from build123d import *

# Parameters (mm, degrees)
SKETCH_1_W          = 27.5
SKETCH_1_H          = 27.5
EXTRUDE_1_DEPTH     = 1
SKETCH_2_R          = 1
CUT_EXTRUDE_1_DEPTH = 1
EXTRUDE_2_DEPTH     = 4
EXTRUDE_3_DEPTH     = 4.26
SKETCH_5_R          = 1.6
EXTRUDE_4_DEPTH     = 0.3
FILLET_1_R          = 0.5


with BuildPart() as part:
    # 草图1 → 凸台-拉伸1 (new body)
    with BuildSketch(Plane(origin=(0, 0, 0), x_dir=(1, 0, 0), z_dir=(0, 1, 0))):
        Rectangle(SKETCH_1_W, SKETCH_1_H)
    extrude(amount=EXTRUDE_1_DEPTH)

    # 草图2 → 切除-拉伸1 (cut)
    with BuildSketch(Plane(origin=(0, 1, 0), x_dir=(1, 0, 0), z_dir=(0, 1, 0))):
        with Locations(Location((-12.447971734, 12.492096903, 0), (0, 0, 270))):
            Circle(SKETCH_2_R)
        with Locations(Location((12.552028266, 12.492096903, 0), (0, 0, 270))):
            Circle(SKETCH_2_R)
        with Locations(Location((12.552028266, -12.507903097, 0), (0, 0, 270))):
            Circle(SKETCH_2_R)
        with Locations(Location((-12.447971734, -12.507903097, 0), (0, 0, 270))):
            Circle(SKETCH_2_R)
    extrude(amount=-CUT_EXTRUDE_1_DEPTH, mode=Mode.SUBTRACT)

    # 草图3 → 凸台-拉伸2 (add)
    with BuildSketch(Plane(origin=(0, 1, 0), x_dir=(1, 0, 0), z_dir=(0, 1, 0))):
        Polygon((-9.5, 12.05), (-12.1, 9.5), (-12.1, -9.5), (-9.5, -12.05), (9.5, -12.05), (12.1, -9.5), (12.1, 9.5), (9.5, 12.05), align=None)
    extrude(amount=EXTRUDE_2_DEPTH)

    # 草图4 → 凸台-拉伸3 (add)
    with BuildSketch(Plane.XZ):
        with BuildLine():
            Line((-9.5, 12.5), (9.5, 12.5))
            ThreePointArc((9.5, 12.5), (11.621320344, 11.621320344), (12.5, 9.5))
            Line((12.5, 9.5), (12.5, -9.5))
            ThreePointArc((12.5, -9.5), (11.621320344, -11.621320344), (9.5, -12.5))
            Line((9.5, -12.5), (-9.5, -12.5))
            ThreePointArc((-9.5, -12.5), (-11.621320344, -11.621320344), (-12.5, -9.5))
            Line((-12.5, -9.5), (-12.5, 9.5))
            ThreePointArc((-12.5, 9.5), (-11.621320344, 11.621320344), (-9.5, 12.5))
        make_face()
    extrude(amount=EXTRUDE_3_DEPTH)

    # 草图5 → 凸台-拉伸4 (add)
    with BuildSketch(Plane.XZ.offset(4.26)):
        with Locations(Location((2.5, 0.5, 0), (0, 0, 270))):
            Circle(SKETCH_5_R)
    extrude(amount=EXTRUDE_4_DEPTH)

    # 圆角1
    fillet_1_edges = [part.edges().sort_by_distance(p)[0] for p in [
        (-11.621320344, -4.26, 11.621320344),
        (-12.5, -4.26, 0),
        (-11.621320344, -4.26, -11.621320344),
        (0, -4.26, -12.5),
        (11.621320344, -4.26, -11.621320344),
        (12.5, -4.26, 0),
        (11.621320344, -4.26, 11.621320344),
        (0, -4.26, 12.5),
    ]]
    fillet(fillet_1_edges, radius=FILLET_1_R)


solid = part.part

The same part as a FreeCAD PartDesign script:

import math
import FreeCAD as App
import Part
import Sketcher

V = App.Vector
Q = App.Units.Quantity


def edges_at(feature, points):
    """Names of the edges that pass closest to the given points."""
    edges = feature.Shape.Edges
    near = lambda p: min(range(len(edges)), key=lambda i: edges[i].distToShape(Part.Vertex(*p))[0])
    return sorted({f"Edge{near(p) + 1}" for p in points})

doc = App.newDocument("Part")
params = doc.addObject("Spreadsheet::Sheet", "Params")
for row, (alias, value) in enumerate([
    ("sketch1_width", "27.5 mm"),
    ("pad1_length", "1 mm"),
    ("sketch2_diameter", "2 mm"),
    ("pocket1_length", "1 mm"),
    ("sketch3_width", "19 mm"),
    ("pad2_length", "4 mm"),
    ("sketch4_radius", "3 mm"),
    ("sketch4_width", "19 mm"),
    ("pad3_length", "4.26 mm"),
    ("sketch5_diameter", "3.2 mm"),
    ("pad4_length", "0.3 mm"),
    ("fillet_radius", "0.5 mm"),
], start=1):
    params.set(f"A{row}", alias)
    params.set(f"B{row}", "=" + value)
    params.setAlias(f"B{row}", alias)

body = doc.addObject("PartDesign::Body", "Body")

sketch1 = body.newObject("Sketcher::SketchObject", "Sketch")
sketch1.AttachmentSupport = (doc.getObject("XZ_Plane"), [""])
sketch1.MapMode = "FlatFace"
sketch1.addGeometry(Part.LineSegment(V(-14, -14, 0), V(-14, 14, 0)), False)
sketch1.addGeometry(Part.LineSegment(V(-14, 14, 0), V(14, 14, 0)), False)
sketch1.addGeometry(Part.LineSegment(V(14, 14, 0), V(14, -14, 0)), False)
sketch1.addGeometry(Part.LineSegment(V(14, -14, 0), V(-14, -14, 0)), False)
sketch1.addConstraint(Sketcher.Constraint("Coincident", 0, 2, 1, 1))
sketch1.addConstraint(Sketcher.Constraint("Coincident", 1, 2, 2, 1))
sketch1.addConstraint(Sketcher.Constraint("Coincident", 2, 2, 3, 1))
sketch1.addConstraint(Sketcher.Constraint("Coincident", 3, 2, 0, 1))
sketch1.addConstraint(Sketcher.Constraint("Vertical", 0))
sketch1.addConstraint(Sketcher.Constraint("Horizontal", 1))
sketch1.addConstraint(Sketcher.Constraint("Vertical", 2))
sketch1.addConstraint(Sketcher.Constraint("Horizontal", 3))
sketch1.addConstraint(Sketcher.Constraint("Symmetric", 0, 2, 2, 2, -1, 1))
sketch1.addConstraint(Sketcher.Constraint("Equal", 3, 0))
sketch1.addConstraint(Sketcher.Constraint("DistanceX", 1, 1, 1, 2, Q("27.5 mm")))
sketch1.setExpression("Constraints[10]", "Params.sketch1_width")
pad1 = body.newObject("PartDesign::Pad", "Pad")
pad1.Profile = sketch1
pad1.setExpression("Length", "Params.pad1_length")
pad1.Reversed = True

sketch2 = body.newObject("Sketcher::SketchObject", "Sketch001")
sketch2.AttachmentSupport = (doc.getObject("XZ_Plane"), [""])
sketch2.MapMode = "FlatFace"
sketch2.AttachmentOffset = App.Placement(V(0, 0, -1), App.Rotation())
sketch2.addGeometry(Part.Circle(V(-12.4, -12.5, 0), V(0, 0, 1), 1), False)
sketch2.addGeometry(Part.Circle(V(12.6, -12.5, 0), V(0, 0, 1), 1), False)
sketch2.addGeometry(Part.Circle(V(12.6, 12.5, 0), V(0, 0, 1), 1), False)
sketch2.addGeometry(Part.Circle(V(-12.4, 12.5, 0), V(0, 0, 1), 1), False)
sketch2.addConstraint(Sketcher.Constraint("Equal", 0, 1))
sketch2.addConstraint(Sketcher.Constraint("Equal", 1, 2))
sketch2.addConstraint(Sketcher.Constraint("Equal", 2, 3))
sketch2.addConstraint(Sketcher.Constraint("Horizontal", 0, 3, 1, 3))
sketch2.addConstraint(Sketcher.Constraint("Horizontal", 2, 3, 3, 3))
sketch2.addConstraint(Sketcher.Constraint("Vertical", 1, 3, 2, 3))
sketch2.addConstraint(Sketcher.Constraint("Vertical", 0, 3, 3, 3))
sketch2.addConstraint(Sketcher.Constraint("Diameter", 0, Q("2 mm")))
sketch2.addConstraint(Sketcher.Constraint("DistanceX", 0, 3, 1, 3, Q("25 mm")))
sketch2.addConstraint(Sketcher.Constraint("DistanceY", 1, 3, 2, 3, Q("25 mm")))
sketch2.addConstraint(Sketcher.Constraint("DistanceX", 0, 3, -1, 1, Q("12.447972 mm")))
sketch2.addConstraint(Sketcher.Constraint("DistanceY", 0, 3, -1, 1, Q("12.492097 mm")))
sketch2.setExpression("Constraints[7]", "Params.sketch2_diameter")
pocket1 = body.newObject("PartDesign::Pocket", "Pocket")
pocket1.Profile = sketch2
pocket1.setExpression("Length", "Params.pocket1_length")
pocket1.Reversed = True

sketch3 = body.newObject("Sketcher::SketchObject", "Sketch002")
sketch3.AttachmentSupport = (doc.getObject("XZ_Plane"), [""])
sketch3.MapMode = "FlatFace"
sketch3.AttachmentOffset = App.Placement(V(0, 0, -1), App.Rotation())
sketch3.addGeometry(Part.LineSegment(V(-9.5, -12.1, 0), V(-12.1, -9.5, 0)), False)
sketch3.addGeometry(Part.LineSegment(V(-12.1, -9.5, 0), V(-12.1, 9.5, 0)), False)
sketch3.addGeometry(Part.LineSegment(V(-12.1, 9.5, 0), V(-9.5, 12.1, 0)), False)
sketch3.addGeometry(Part.LineSegment(V(-9.5, 12.1, 0), V(9.5, 12.1, 0)), False)
sketch3.addGeometry(Part.LineSegment(V(9.5, 12.1, 0), V(12.1, 9.5, 0)), False)
sketch3.addGeometry(Part.LineSegment(V(12.1, 9.5, 0), V(12.1, -9.5, 0)), False)
sketch3.addGeometry(Part.LineSegment(V(12.1, -9.5, 0), V(9.5, -12.1, 0)), False)
sketch3.addGeometry(Part.LineSegment(V(9.5, -12.1, 0), V(-9.5, -12.1, 0)), False)
sketch3.addConstraint(Sketcher.Constraint("Coincident", 0, 2, 1, 1))
sketch3.addConstraint(Sketcher.Constraint("Coincident", 1, 2, 2, 1))
sketch3.addConstraint(Sketcher.Constraint("Coincident", 2, 2, 3, 1))
sketch3.addConstraint(Sketcher.Constraint("Coincident", 3, 2, 4, 1))
sketch3.addConstraint(Sketcher.Constraint("Coincident", 4, 2, 5, 1))
sketch3.addConstraint(Sketcher.Constraint("Coincident", 5, 2, 6, 1))
sketch3.addConstraint(Sketcher.Constraint("Coincident", 6, 2, 7, 1))
sketch3.addConstraint(Sketcher.Constraint("Coincident", 7, 2, 0, 1))
sketch3.addConstraint(Sketcher.Constraint("Vertical", 1))
sketch3.addConstraint(Sketcher.Constraint("Horizontal", 3))
sketch3.addConstraint(Sketcher.Constraint("Vertical", 5))
sketch3.addConstraint(Sketcher.Constraint("Horizontal", 7))
sketch3.addConstraint(Sketcher.Constraint("Symmetric", 0, 2, 4, 2, -1, 1))
sketch3.addConstraint(Sketcher.Constraint("Symmetric", 2, 2, 6, 2, -1, 1))
sketch3.addConstraint(Sketcher.Constraint("Parallel", 0, 4))
sketch3.addConstraint(Sketcher.Constraint("Parallel", 2, 6))
sketch3.addConstraint(Sketcher.Constraint("Horizontal", 1, 2, 4, 2))
sketch3.addConstraint(Sketcher.Constraint("Vertical", 3, 2, 6, 2))
sketch3.addConstraint(Sketcher.Constraint("Equal", 7, 1))
sketch3.addConstraint(Sketcher.Constraint("DistanceX", 3, 1, 3, 2, Q("19 mm")))
sketch3.addConstraint(Sketcher.Constraint("DistanceX", 0, 2, -1, 1, Q("12.1 mm")))
sketch3.addConstraint(Sketcher.Constraint("DistanceY", 6, 2, 3, 2, Q("24.1 mm")))
sketch3.setExpression("Constraints[19]", "Params.sketch3_width")
pad2 = body.newObject("PartDesign::Pad", "Pad001")
pad2.Profile = sketch3
pad2.setExpression("Length", "Params.pad2_length")
pad2.Reversed = True

sketch4 = body.newObject("Sketcher::SketchObject", "Sketch003")
sketch4.AttachmentSupport = (doc.getObject("XZ_Plane"), [""])
sketch4.MapMode = "FlatFace"
sketch4.addGeometry(Part.LineSegment(V(9.5, 12.5, 0), V(-9.5, 12.5, 0)), False)
sketch4.addGeometry(Part.ArcOfCircle(Part.Circle(V(-9.5, 9.5, 0), V(0, 0, 1), 3), math.radians(90), math.radians(180)), False)
sketch4.addGeometry(Part.LineSegment(V(-12.5, 9.5, 0), V(-12.5, -9.5, 0)), False)
sketch4.addGeometry(Part.ArcOfCircle(Part.Circle(V(-9.5, -9.5, 0), V(0, 0, 1), 3), math.radians(180), math.radians(270)), False)
sketch4.addGeometry(Part.LineSegment(V(-9.5, -12.5, 0), V(9.5, -12.5, 0)), False)
sketch4.addGeometry(Part.ArcOfCircle(Part.Circle(V(9.5, -9.5, 0), V(0, 0, 1), 3), math.radians(-90), math.radians(0)), False)
sketch4.addGeometry(Part.LineSegment(V(12.5, -9.5, 0), V(12.5, 9.5, 0)), False)
sketch4.addGeometry(Part.ArcOfCircle(Part.Circle(V(9.5, 9.5, 0), V(0, 0, 1), 3), math.radians(0), math.radians(90)), False)
sketch4.addConstraint(Sketcher.Constraint("Tangent", 0, 2, 1, 1))
sketch4.addConstraint(Sketcher.Constraint("Tangent", 1, 2, 2, 1))
sketch4.addConstraint(Sketcher.Constraint("Tangent", 2, 2, 3, 1))
sketch4.addConstraint(Sketcher.Constraint("Tangent", 3, 2, 4, 1))
sketch4.addConstraint(Sketcher.Constraint("Tangent", 4, 2, 5, 1))
sketch4.addConstraint(Sketcher.Constraint("Tangent", 5, 2, 6, 1))
sketch4.addConstraint(Sketcher.Constraint("Tangent", 6, 2, 7, 1))
sketch4.addConstraint(Sketcher.Constraint("Tangent", 7, 2, 0, 1))
sketch4.addConstraint(Sketcher.Constraint("Horizontal", 0))
sketch4.addConstraint(Sketcher.Constraint("Vertical", 2))
sketch4.addConstraint(Sketcher.Constraint("Horizontal", 4))
sketch4.addConstraint(Sketcher.Constraint("Vertical", 6))
sketch4.addConstraint(Sketcher.Constraint("Equal", 1, 3))
sketch4.addConstraint(Sketcher.Constraint("Equal", 3, 5))
sketch4.addConstraint(Sketcher.Constraint("Equal", 5, 7))
sketch4.addConstraint(Sketcher.Constraint("Symmetric", 1, 3, 5, 3, -1, 1))
sketch4.addConstraint(Sketcher.Constraint("Equal", 4, 2))
sketch4.addConstraint(Sketcher.Constraint("Radius", 1, Q("3 mm")))
sketch4.addConstraint(Sketcher.Constraint("DistanceX", 0, 2, 0, 1, Q("19 mm")))
sketch4.setExpression("Constraints[17]", "Params.sketch4_radius")
sketch4.setExpression("Constraints[18]", "Params.sketch4_width")
pad3 = body.newObject("PartDesign::Pad", "Pad002")
pad3.Profile = sketch4
pad3.setExpression("Length", "Params.pad3_length")

sketch5 = body.newObject("Sketcher::SketchObject", "Sketch004")
sketch5.AttachmentSupport = (doc.getObject("XZ_Plane"), [""])
sketch5.MapMode = "FlatFace"
sketch5.AttachmentOffset = App.Placement(V(0, 0, 4.26), App.Rotation())
sketch5.addGeometry(Part.Circle(V(2.5, 0.5, 0), V(0, 0, 1), 1.6), False)
sketch5.addConstraint(Sketcher.Constraint("Diameter", 0, Q("3.2 mm")))
sketch5.addConstraint(Sketcher.Constraint("DistanceX", -1, 1, 0, 3, Q("2.5 mm")))
sketch5.addConstraint(Sketcher.Constraint("DistanceY", -1, 1, 0, 3, Q("0.5 mm")))
sketch5.setExpression("Constraints[0]", "Params.sketch5_diameter")
pad4 = body.newObject("PartDesign::Pad", "Pad003")
pad4.Profile = sketch5
pad4.setExpression("Length", "Params.pad4_length")
doc.recompute()

fillet = body.newObject("PartDesign::Fillet", "Fillet")
fillet.Base = (pad4, edges_at(pad4, [
    (-11.621, -4.26, 11.621),
    (-12.5, -4.26, 0),
    (-11.621, -4.26, -11.621),
    (0, -4.26, -12.5),
    (11.621, -4.26, -11.621),
    (12.5, -4.26, 0),
    (11.621, -4.26, 11.621),
    (0, -4.26, 12.5),
]))
fillet.setExpression("Radius", "Params.fillet_radius")

doc.recompute()
